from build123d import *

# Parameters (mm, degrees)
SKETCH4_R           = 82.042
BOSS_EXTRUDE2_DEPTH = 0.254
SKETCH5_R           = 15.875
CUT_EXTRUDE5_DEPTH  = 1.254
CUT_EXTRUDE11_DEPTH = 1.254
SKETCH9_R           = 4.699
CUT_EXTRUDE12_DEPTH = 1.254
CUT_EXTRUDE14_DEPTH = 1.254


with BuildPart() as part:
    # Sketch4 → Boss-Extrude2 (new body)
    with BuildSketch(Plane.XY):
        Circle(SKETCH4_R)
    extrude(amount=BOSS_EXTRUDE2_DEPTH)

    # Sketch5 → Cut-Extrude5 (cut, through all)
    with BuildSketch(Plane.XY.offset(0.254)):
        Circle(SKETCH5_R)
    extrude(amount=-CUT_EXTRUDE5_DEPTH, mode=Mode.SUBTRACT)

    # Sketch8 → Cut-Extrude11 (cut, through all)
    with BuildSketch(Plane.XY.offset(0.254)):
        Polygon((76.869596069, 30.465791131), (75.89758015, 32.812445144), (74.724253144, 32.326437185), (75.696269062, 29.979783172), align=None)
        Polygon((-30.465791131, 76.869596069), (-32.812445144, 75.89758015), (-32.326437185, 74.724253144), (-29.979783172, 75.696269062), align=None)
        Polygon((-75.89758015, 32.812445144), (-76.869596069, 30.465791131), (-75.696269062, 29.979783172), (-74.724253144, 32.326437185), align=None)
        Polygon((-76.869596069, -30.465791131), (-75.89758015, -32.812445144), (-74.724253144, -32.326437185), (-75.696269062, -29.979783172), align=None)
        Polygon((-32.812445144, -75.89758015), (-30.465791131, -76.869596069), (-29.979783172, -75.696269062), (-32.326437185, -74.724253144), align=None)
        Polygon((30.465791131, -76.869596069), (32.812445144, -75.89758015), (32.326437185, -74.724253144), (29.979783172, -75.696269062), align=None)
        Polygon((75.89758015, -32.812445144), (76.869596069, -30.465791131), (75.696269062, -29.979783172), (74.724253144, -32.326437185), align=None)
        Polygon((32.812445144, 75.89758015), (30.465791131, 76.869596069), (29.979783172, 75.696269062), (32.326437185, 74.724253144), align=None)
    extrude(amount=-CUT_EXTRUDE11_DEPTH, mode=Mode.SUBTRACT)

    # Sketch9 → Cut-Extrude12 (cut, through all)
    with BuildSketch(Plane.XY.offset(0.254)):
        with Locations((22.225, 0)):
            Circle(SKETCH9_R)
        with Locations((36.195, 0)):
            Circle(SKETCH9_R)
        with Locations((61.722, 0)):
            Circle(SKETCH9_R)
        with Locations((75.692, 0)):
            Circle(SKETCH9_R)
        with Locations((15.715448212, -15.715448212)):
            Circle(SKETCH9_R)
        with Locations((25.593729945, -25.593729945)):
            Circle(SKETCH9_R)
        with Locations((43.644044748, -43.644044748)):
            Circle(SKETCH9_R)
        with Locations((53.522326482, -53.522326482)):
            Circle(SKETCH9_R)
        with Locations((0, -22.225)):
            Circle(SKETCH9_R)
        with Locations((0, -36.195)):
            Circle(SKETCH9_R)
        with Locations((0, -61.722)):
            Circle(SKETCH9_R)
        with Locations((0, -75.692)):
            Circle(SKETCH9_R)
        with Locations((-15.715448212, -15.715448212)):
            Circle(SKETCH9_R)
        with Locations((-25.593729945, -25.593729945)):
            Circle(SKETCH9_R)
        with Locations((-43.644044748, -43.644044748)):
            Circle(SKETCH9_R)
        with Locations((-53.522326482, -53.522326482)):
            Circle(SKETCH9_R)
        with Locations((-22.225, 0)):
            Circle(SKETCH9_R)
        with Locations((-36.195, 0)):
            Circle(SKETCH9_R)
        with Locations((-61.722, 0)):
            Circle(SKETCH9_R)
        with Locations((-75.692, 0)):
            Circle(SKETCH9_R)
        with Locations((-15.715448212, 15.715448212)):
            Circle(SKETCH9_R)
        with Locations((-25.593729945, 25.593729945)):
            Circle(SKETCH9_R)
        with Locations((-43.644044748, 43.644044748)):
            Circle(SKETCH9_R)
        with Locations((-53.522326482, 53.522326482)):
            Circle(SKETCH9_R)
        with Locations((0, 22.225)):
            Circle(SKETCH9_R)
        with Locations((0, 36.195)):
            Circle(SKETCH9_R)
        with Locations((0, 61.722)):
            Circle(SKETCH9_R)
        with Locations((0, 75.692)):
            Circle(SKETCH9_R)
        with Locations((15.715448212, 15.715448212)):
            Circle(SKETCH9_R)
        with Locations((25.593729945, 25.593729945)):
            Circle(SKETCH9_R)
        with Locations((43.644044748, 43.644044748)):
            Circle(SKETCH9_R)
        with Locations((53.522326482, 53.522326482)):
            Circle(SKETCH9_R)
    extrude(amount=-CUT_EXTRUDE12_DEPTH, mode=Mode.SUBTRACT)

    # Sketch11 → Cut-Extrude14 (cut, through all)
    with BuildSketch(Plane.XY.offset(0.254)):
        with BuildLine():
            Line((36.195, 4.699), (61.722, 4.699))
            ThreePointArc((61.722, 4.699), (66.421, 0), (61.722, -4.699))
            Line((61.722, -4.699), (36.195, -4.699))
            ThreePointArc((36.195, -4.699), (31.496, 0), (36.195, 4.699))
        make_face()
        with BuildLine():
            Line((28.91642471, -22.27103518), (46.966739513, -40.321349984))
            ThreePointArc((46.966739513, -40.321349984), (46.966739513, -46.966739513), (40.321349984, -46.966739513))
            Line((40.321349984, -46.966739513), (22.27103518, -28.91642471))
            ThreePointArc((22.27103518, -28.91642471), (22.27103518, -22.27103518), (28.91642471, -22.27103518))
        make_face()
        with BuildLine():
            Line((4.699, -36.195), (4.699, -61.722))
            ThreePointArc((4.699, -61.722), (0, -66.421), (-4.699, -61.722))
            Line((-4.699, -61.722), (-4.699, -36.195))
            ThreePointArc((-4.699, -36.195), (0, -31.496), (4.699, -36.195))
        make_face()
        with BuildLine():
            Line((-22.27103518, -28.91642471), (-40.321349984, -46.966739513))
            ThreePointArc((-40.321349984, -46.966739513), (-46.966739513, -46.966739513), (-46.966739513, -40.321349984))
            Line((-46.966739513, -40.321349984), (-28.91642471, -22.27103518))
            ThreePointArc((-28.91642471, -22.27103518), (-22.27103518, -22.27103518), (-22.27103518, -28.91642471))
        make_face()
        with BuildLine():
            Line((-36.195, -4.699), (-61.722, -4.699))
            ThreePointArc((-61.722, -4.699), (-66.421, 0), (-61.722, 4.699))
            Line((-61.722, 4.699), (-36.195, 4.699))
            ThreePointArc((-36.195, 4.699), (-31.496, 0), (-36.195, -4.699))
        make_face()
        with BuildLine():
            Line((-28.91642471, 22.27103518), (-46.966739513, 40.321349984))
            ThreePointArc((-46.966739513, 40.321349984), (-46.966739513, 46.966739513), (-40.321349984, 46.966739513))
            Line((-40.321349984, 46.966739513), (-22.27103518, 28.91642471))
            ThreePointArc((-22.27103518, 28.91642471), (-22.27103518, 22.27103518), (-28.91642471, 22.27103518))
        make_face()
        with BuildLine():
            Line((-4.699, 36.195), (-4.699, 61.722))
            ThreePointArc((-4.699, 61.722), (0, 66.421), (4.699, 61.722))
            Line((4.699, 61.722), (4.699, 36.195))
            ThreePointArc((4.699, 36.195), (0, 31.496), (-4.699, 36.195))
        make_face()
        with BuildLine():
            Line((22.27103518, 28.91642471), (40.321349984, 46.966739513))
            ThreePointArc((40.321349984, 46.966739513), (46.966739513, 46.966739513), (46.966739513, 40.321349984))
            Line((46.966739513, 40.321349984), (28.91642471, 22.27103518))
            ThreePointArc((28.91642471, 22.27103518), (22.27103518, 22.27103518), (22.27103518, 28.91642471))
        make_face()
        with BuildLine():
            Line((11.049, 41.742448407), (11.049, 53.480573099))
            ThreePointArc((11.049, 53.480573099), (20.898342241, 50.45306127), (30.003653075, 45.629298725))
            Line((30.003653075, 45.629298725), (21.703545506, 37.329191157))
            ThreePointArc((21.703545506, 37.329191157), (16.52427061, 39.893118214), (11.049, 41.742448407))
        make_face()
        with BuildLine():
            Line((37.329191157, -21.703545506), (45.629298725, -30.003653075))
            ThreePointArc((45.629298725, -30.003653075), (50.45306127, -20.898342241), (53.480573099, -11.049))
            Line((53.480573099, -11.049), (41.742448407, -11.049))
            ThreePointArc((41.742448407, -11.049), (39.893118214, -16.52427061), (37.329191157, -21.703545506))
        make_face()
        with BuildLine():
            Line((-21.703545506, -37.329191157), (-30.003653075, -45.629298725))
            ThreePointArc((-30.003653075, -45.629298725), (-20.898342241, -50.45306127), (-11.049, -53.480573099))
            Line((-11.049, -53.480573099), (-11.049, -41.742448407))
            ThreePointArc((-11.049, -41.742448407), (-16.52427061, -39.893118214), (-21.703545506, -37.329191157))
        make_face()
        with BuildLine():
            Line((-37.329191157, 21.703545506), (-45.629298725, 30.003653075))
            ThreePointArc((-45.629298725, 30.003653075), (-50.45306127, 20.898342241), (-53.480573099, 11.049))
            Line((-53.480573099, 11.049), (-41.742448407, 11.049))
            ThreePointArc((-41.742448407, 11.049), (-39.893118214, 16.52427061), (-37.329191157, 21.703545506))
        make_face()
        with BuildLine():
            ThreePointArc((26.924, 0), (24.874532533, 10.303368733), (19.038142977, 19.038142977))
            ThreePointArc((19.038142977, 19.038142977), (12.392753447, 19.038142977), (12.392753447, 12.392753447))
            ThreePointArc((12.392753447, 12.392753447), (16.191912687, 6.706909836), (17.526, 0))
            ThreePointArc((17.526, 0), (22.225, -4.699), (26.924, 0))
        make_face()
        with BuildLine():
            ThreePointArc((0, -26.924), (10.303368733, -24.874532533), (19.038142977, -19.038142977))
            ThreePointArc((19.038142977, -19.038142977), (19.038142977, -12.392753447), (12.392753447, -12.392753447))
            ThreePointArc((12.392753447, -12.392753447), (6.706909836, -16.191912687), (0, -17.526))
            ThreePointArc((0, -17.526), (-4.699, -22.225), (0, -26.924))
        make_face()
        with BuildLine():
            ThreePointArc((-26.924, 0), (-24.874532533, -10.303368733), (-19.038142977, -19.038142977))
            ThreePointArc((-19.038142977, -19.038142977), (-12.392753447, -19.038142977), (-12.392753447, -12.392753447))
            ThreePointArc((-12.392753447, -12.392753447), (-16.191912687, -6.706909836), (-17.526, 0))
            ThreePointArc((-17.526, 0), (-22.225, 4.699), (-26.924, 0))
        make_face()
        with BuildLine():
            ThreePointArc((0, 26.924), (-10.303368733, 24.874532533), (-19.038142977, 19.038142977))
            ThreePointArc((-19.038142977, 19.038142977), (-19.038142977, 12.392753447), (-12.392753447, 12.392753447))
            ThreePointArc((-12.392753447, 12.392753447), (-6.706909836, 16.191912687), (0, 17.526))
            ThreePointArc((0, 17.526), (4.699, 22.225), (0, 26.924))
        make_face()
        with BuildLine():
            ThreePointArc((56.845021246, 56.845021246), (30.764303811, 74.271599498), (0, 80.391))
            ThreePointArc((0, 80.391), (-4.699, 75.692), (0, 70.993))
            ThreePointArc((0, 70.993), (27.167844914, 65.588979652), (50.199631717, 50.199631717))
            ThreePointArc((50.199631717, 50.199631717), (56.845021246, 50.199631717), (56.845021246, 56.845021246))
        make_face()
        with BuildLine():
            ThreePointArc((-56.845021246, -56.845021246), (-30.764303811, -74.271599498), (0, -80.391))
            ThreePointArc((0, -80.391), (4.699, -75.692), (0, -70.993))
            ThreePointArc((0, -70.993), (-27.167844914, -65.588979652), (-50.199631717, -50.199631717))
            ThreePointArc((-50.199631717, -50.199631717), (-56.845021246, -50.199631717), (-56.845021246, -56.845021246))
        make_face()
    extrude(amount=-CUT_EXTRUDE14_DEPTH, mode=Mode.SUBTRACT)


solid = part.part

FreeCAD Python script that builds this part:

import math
import FreeCAD as App
import Part
import Sketcher

V = App.Vector
Q = App.Units.Quantity

doc = App.newDocument("Part")
body = doc.addObject("PartDesign::Body", "Body")

# Sketch on XY plane
sketch1 = body.newObject("Sketcher::SketchObject", "Sketch")
sketch1.AttachmentSupport = (doc.getObject("XY_Plane"), [""])
sketch1.MapMode = "FlatFace"
sketch1.addGeometry(Part.Circle(V(0, 0, 0), V(0, 0, 1), 82.042), False)
sketch1.addConstraint([
    Sketcher.Constraint("Coincident", 0, 3, -1, 1),
    Sketcher.Constraint("Diameter", 0, Q("6.46 in")),
])
pad1 = body.newObject("PartDesign::Pad", "Pad")
pad1.Profile = sketch1
pad1.Length = Q("0.01 in")

# Sketch on XY plane
sketch2 = body.newObject("Sketcher::SketchObject", "Sketch001")
sketch2.AttachmentSupport = (doc.getObject("XY_Plane"), [""])
sketch2.MapMode = "FlatFace"
sketch2.AttachmentOffset = App.Placement(V(0, 0, 0.01 * 25.4), App.Rotation())
sketch2.addGeometry(Part.Circle(V(0, 0, 0), V(0, 0, 1), 15.875), False)
sketch2.addConstraint([
    Sketcher.Constraint("Coincident", 0, 3, -1, 1),
    Sketcher.Constraint("Diameter", 0, Q("1.25 in")),
])
pocket1 = body.newObject("PartDesign::Pocket", "Pocket")
pocket1.Profile = sketch2
pocket1.Type = "ThroughAll"

# Sketch on XY plane
sketch3 = body.newObject("Sketcher::SketchObject", "Sketch002")
sketch3.AttachmentSupport = (doc.getObject("XY_Plane"), [""])
sketch3.MapMode = "FlatFace"
sketch3.AttachmentOffset = App.Placement(V(0, 0, 0.01 * 25.4), App.Rotation())
sketch3.addGeometry([
    Part.LineSegment(V(76.869596, 30.465791, 0), V(75.89758, 32.812445, 0)),  # 0
    Part.LineSegment(V(75.89758, 32.812445, 0), V(74.724253, 32.326437, 0)),  # 1
    Part.LineSegment(V(74.724253, 32.326437, 0), V(75.696269, 29.979783, 0)),  # 2
    Part.LineSegment(V(75.696269, 29.979783, 0), V(76.869596, 30.465791, 0)),  # 3
    Part.LineSegment(V(-30.465791, 76.869596, 0), V(-32.812445, 75.89758, 0)),  # 4
    Part.LineSegment(V(-32.812445, 75.89758, 0), V(-32.326437, 74.724253, 0)),  # 5
    Part.LineSegment(V(-32.326437, 74.724253, 0), V(-29.979783, 75.696269, 0)),  # 6
    Part.LineSegment(V(-29.979783, 75.696269, 0), V(-30.465791, 76.869596, 0)),  # 7
    Part.LineSegment(V(-75.89758, 32.812445, 0), V(-76.869596, 30.465791, 0)),  # 8
    Part.LineSegment(V(-76.869596, 30.465791, 0), V(-75.696269, 29.979783, 0)),  # 9
    Part.LineSegment(V(-75.696269, 29.979783, 0), V(-74.724253, 32.326437, 0)),  # 10
    Part.LineSegment(V(-74.724253, 32.326437, 0), V(-75.89758, 32.812445, 0)),  # 11
    Part.LineSegment(V(-76.869596, -30.465791, 0), V(-75.89758, -32.812445, 0)),  # 12
    Part.LineSegment(V(-75.89758, -32.812445, 0), V(-74.724253, -32.326437, 0)),  # 13
    Part.LineSegment(V(-74.724253, -32.326437, 0), V(-75.696269, -29.979783, 0)),  # 14
    Part.LineSegment(V(-75.696269, -29.979783, 0), V(-76.869596, -30.465791, 0)),  # 15
    Part.LineSegment(V(-32.812445, -75.89758, 0), V(-30.465791, -76.869596, 0)),  # 16
    Part.LineSegment(V(-30.465791, -76.869596, 0), V(-29.979783, -75.696269, 0)),  # 17
    Part.LineSegment(V(-29.979783, -75.696269, 0), V(-32.326437, -74.724253, 0)),  # 18
    Part.LineSegment(V(-32.326437, -74.724253, 0), V(-32.812445, -75.89758, 0)),  # 19
    Part.LineSegment(V(30.465791, -76.869596, 0), V(32.812445, -75.89758, 0)),  # 20
    Part.LineSegment(V(32.812445, -75.89758, 0), V(32.326437, -74.724253, 0)),  # 21
    Part.LineSegment(V(32.326437, -74.724253, 0), V(29.979783, -75.696269, 0)),  # 22
    Part.LineSegment(V(29.979783, -75.696269, 0), V(30.465791, -76.869596, 0)),  # 23
    Part.LineSegment(V(75.89758, -32.812445, 0), V(76.869596, -30.465791, 0)),  # 24
    Part.LineSegment(V(76.869596, -30.465791, 0), V(75.696269, -29.979783, 0)),  # 25
    Part.LineSegment(V(75.696269, -29.979783, 0), V(74.724253, -32.326437, 0)),  # 26
    Part.LineSegment(V(74.724253, -32.326437, 0), V(75.89758, -32.812445, 0)),  # 27
    Part.LineSegment(V(32.812445, 75.89758, 0), V(30.465791, 76.869596, 0)),  # 28
    Part.LineSegment(V(30.465791, 76.869596, 0), V(29.979783, 75.696269, 0)),  # 29
    Part.LineSegment(V(29.979783, 75.696269, 0), V(32.326437, 74.724253, 0)),  # 30
    Part.LineSegment(V(32.326437, 74.724253, 0), V(32.812445, 75.89758, 0)),  # 31
], False)
sketch3.addConstraint([
    Sketcher.Constraint("Coincident", 0, 2, 1, 1),
    Sketcher.Constraint("Coincident", 1, 2, 2, 1),
    Sketcher.Constraint("Coincident", 2, 2, 3, 1),
    Sketcher.Constraint("Coincident", 3, 2, 0, 1),
    Sketcher.Constraint("Coincident", 4, 2, 5, 1),
    Sketcher.Constraint("Coincident", 5, 2, 6, 1),
    Sketcher.Constraint("Coincident", 6, 2, 7, 1),
    Sketcher.Constraint("Coincident", 7, 2, 4, 1),
    Sketcher.Constraint("Coincident", 8, 2, 9, 1),
    Sketcher.Constraint("Coincident", 9, 2, 10, 1),
    Sketcher.Constraint("Coincident", 10, 2, 11, 1),
    Sketcher.Constraint("Coincident", 11, 2, 8, 1),
    Sketcher.Constraint("Coincident", 12, 2, 13, 1),
    Sketcher.Constraint("Coincident", 13, 2, 14, 1),
    Sketcher.Constraint("Coincident", 14, 2, 15, 1),
    Sketcher.Constraint("Coincident", 15, 2, 12, 1),
    Sketcher.Constraint("Coincident", 16, 2, 17, 1),
    Sketcher.Constraint("Coincident", 17, 2, 18, 1),
    Sketcher.Constraint("Coincident", 18, 2, 19, 1),
    Sketcher.Constraint("Coincident", 19, 2, 16, 1),
    Sketcher.Constraint("Coincident", 20, 2, 21, 1),
    Sketcher.Constraint("Coincident", 21, 2, 22, 1),
    Sketcher.Constraint("Coincident", 22, 2, 23, 1),
    Sketcher.Constraint("Coincident", 23, 2, 20, 1),
    Sketcher.Constraint("Coincident", 24, 2, 25, 1),
    Sketcher.Constraint("Coincident", 25, 2, 26, 1),
    Sketcher.Constraint("Coincident", 26, 2, 27, 1),
    Sketcher.Constraint("Coincident", 27, 2, 24, 1),
    Sketcher.Constraint("Coincident", 28, 2, 29, 1),
    Sketcher.Constraint("Coincident", 29, 2, 30, 1),
    Sketcher.Constraint("Coincident", 30, 2, 31, 1),
    Sketcher.Constraint("Coincident", 31, 2, 28, 1),
    Sketcher.Constraint("Symmetric", 0, 2, 12, 2, -1, 1),
    Sketcher.Constraint("Symmetric", 1, 2, 13, 2, -1, 1),
    Sketcher.Constraint("Symmetric", 2, 2, 14, 2, -1, 1),
    Sketcher.Constraint("Symmetric", 3, 2, 15, 2, -1, 1),
    Sketcher.Constraint("Symmetric", 4, 2, 20, 2, -1, 1),
    Sketcher.Constraint("Symmetric", 5, 2, 21, 2, -1, 1),
    Sketcher.Constraint("Symmetric", 6, 2, 22, 2, -1, 1),
    Sketcher.Constraint("Symmetric", 7, 2, 23, 2, -1, 1),
    Sketcher.Constraint("Symmetric", 8, 2, 24, 2, -1, 1),
    Sketcher.Constraint("Symmetric", 9, 2, 25, 2, -1, 1),
    Sketcher.Constraint("Symmetric", 10, 2, 26, 2, -1, 1),
    Sketcher.Constraint("Symmetric", 11, 2, 27, 2, -1, 1),
    Sketcher.Constraint("Symmetric", 16, 2, 28, 2, -1, 1),
    Sketcher.Constraint("Symmetric", 17, 2, 29, 2, -1, 1),
    Sketcher.Constraint("Symmetric", 18, 2, 30, 2, -1, 1),
    Sketcher.Constraint("Symmetric", 19, 2, 31, 2, -1, 1),
    Sketcher.Constraint("Symmetric", 3, 2, 8, 2, -2),
    Sketcher.Constraint("Symmetric", 2, 2, 9, 2, -2),
    Sketcher.Constraint("Symmetric", 1, 2, 10, 2, -2),
    Sketcher.Constraint("Symmetric", 0, 2, 11, 2, -2),
    Sketcher.Constraint("Symmetric", 19, 2, 20, 2, -2),
    Sketcher.Constraint("Symmetric", 18, 2, 21, 2, -2),
    Sketcher.Constraint("Symmetric", 17, 2, 22, 2, -2),
    Sketcher.Constraint("Symmetric", 16, 2, 23, 2, -2),
    Sketcher.Constraint("Perpendicular", 0, 1),
    Sketcher.Constraint("Perpendicular", 1, 2),
    Sketcher.Constraint("Perpendicular", 2, 3),
    Sketcher.Constraint("Parallel", 3, 4),
    Sketcher.Constraint("Perpendicular", 4, 5),
    Sketcher.Constraint("Perpendicular", 5, 6),
    Sketcher.Constraint("Perpendicular", 6, 7),
    Sketcher.Constraint("Equal", 2, 4),
    Sketcher.Constraint("Equal", 3, 5),
    Sketcher.Constraint("Distance", 0, Q("0.1 in")),
    Sketcher.Constraint("Angle", 0, Q("112.5 deg")),
    Sketcher.Constraint("Distance", 1, Q("0.05 in")),
    Sketcher.Constraint("DistanceX", 6, 2, 0, 2, Q("4.1684001 in")),
    Sketcher.Constraint("DistanceY", 20, 2, 2, 2, Q("4.1684001 in")),
    Sketcher.Constraint("DistanceX", -1, 1, 0, 2, Q("75.89758 mm")),
    Sketcher.Constraint("DistanceY", -1, 1, 3, 2, Q("30.465791 mm")),
])
pocket2 = body.newObject("PartDesign::Pocket", "Pocket001")
pocket2.Profile = sketch3
pocket2.Type = "ThroughAll"

# Sketch on XY plane
sketch4 = body.newObject("Sketcher::SketchObject", "Sketch003")
sketch4.AttachmentSupport = (doc.getObject("XY_Plane"), [""])
sketch4.MapMode = "FlatFace"
sketch4.AttachmentOffset = App.Placement(V(0, 0, 0.01 * 25.4), App.Rotation())
sketch4.addGeometry([
    Part.Circle(V(22.225, 0, 0), V(0, 0, 1), 4.699),  # 0
    Part.Circle(V(36.195, 0, 0), V(0, 0, 1), 4.699),  # 1
    Part.Circle(V(61.722, 0, 0), V(0, 0, 1), 4.699),  # 2
    Part.Circle(V(75.692, 0, 0), V(0, 0, 1), 4.699),  # 3
    Part.Circle(V(15.715448, -15.715448, 0), V(0, 0, 1), 4.699),  # 4
    Part.Circle(V(25.59373, -25.59373, 0), V(0, 0, 1), 4.699),  # 5
    Part.Circle(V(43.644045, -43.644045, 0), V(0, 0, 1), 4.699),  # 6
    Part.Circle(V(53.522326, -53.522326, 0), V(0, 0, 1), 4.699),  # 7
    Part.Circle(V(0, -22.225, 0), V(0, 0, 1), 4.699),  # 8
    Part.Circle(V(0, -36.195, 0), V(0, 0, 1), 4.699),  # 9
    Part.Circle(V(0, -61.722, 0), V(0, 0, 1), 4.699),  # 10
    Part.Circle(V(0, -75.692, 0), V(0, 0, 1), 4.699),  # 11
    Part.Circle(V(-15.715448, -15.715448, 0), V(0, 0, 1), 4.699),  # 12
    Part.Circle(V(-25.59373, -25.59373, 0), V(0, 0, 1), 4.699),  # 13
    Part.Circle(V(-43.644045, -43.644045, 0), V(0, 0, 1), 4.699),  # 14
    Part.Circle(V(-53.522326, -53.522326, 0), V(0, 0, 1), 4.699),  # 15
    Part.Circle(V(-22.225, 0, 0), V(0, 0, 1), 4.699),  # 16
    Part.Circle(V(-36.195, 0, 0), V(0, 0, 1), 4.699),  # 17
    Part.Circle(V(-61.722, 0, 0), V(0, 0, 1), 4.699),  # 18
    Part.Circle(V(-75.692, 0, 0), V(0, 0, 1), 4.699),  # 19
    Part.Circle(V(-15.715448, 15.715448, 0), V(0, 0, 1), 4.699),  # 20
    Part.Circle(V(-25.59373, 25.59373, 0), V(0, 0, 1), 4.699),  # 21
    Part.Circle(V(-43.644045, 43.644045, 0), V(0, 0, 1), 4.699),  # 22
    Part.Circle(V(-53.522326, 53.522326, 0), V(0, 0, 1), 4.699),  # 23
    Part.Circle(V(0, 22.225, 0), V(0, 0, 1), 4.699),  # 24
    Part.Circle(V(0, 36.195, 0), V(0, 0, 1), 4.699),  # 25
    Part.Circle(V(0, 61.722, 0), V(0, 0, 1), 4.699),  # 26
    Part.Circle(V(0, 75.692, 0), V(0, 0, 1), 4.699),  # 27
    Part.Circle(V(15.715448, 15.715448, 0), V(0, 0, 1), 4.699),  # 28
    Part.Circle(V(25.59373, 25.59373, 0), V(0, 0, 1), 4.699),  # 29
    Part.Circle(V(43.644045, 43.644045, 0), V(0, 0, 1), 4.699),  # 30
    Part.Circle(V(53.522326, 53.522326, 0), V(0, 0, 1), 4.699),  # 31
], False)
sketch4.addConstraint([
    Sketcher.Constraint("Equal", 0, 1),
    Sketcher.Constraint("Equal", 1, 2),
    Sketcher.Constraint("Equal", 2, 3),
    Sketcher.Constraint("Equal", 3, 4),
    Sketcher.Constraint("Equal", 4, 5),
    Sketcher.Constraint("Equal", 5, 6),
    Sketcher.Constraint("Equal", 6, 7),
    Sketcher.Constraint("Equal", 7, 8),
    Sketcher.Constraint("Equal", 8, 9),
    Sketcher.Constraint("Equal", 9, 10),
    Sketcher.Constraint("Equal", 10, 11),
    Sketcher.Constraint("Equal", 11, 12),
    Sketcher.Constraint("Equal", 12, 13),
    Sketcher.Constraint("Equal", 13, 14),
    Sketcher.Constraint("Equal", 14, 15),
    Sketcher.Constraint("Equal", 15, 16),
    Sketcher.Constraint("Equal", 16, 17),
    Sketcher.Constraint("Equal", 17, 18),
    Sketcher.Constraint("Equal", 18, 19),
    Sketcher.Constraint("Equal", 19, 20),
    Sketcher.Constraint("Equal", 20, 21),
    Sketcher.Constraint("Equal", 21, 22),
    Sketcher.Constraint("Equal", 22, 23),
    Sketcher.Constraint("Equal", 23, 24),
    Sketcher.Constraint("Equal", 24, 25),
    Sketcher.Constraint("Equal", 25, 26),
    Sketcher.Constraint("Equal", 26, 27),
    Sketcher.Constraint("Equal", 27, 28),
    Sketcher.Constraint("Equal", 28, 29),
    Sketcher.Constraint("Equal", 29, 30),
    Sketcher.Constraint("Equal", 30, 31),
    Sketcher.Constraint("Symmetric", 0, 3, 16, 3, -1, 1),
    Sketcher.Constraint("Symmetric", 1, 3, 17, 3, -1, 1),
    Sketcher.Constraint("Symmetric", 2, 3, 18, 3, -1, 1),
    Sketcher.Constraint("Symmetric", 3, 3, 19, 3, -1, 1),
    Sketcher.Constraint("Symmetric", 4, 3, 20, 3, -1, 1),
    Sketcher.Constraint("Symmetric", 5, 3, 21, 3, -1, 1),
    Sketcher.Constraint("Symmetric", 6, 3, 22, 3, -1, 1),
    Sketcher.Constraint("Symmetric", 7, 3, 23, 3, -1, 1),
    Sketcher.Constraint("Symmetric", 8, 3, 24, 3, -1, 1),
    Sketcher.Constraint("Symmetric", 9, 3, 25, 3, -1, 1),
    Sketcher.Constraint("Symmetric", 10, 3, 26, 3, -1, 1),
    Sketcher.Constraint("Symmetric", 11, 3, 27, 3, -1, 1),
    Sketcher.Constraint("Symmetric", 12, 3, 28, 3, -1, 1),
    Sketcher.Constraint("Symmetric", 13, 3, 29, 3, -1, 1),
    Sketcher.Constraint("Symmetric", 14, 3, 30, 3, -1, 1),
    Sketcher.Constraint("Symmetric", 15, 3, 31, 3, -1, 1),
    Sketcher.Constraint("Symmetric", 4, 3, 12, 3, -2),
    Sketcher.Constraint("Symmetric", 5, 3, 13, 3, -2),
    Sketcher.Constraint("Symmetric", 6, 3, 14, 3, -2),
    Sketcher.Constraint("Symmetric", 7, 3, 15, 3, -2),
    Sketcher.Constraint("PointOnObject", 0, 3, -1),
    Sketcher.Constraint("PointOnObject", 1, 3, -1),
    Sketcher.Constraint("PointOnObject", 2, 3, -1),
    Sketcher.Constraint("PointOnObject", 3, 3, -1),
    Sketcher.Constraint("PointOnObject", 8, 3, -2),
    Sketcher.Constraint("PointOnObject", 9, 3, -2),
    Sketcher.Constraint("PointOnObject", 10, 3, -2),
    Sketcher.Constraint("PointOnObject", 11, 3, -2),
    Sketcher.Constraint("Diameter", 0, Q("0.37 in")),
    Sketcher.Constraint("DistanceX", -1, 1, 2, 3, Q("2.43 in")),
    Sketcher.Constraint("DistanceX", -1, 1, 3, 3, Q("2.98 in")),
    Sketcher.Constraint("DistanceY", 10, 3, -1, 1, Q("2.43 in")),
    Sketcher.Constraint("DistanceY", 11, 3, -1, 1, Q("2.98 in")),
    Sketcher.Constraint("DistanceX", 0, 3, 1, 3, Q("0.55 in")),
    Sketcher.Constraint("DistanceY", 9, 3, 8, 3, Q("0.55 in")),
    Sketcher.Constraint("DistanceX", -1, 1, 0, 3, Q("0.875 in")),
    Sketcher.Constraint("DistanceY", 8, 3, -1, 1, Q("0.875 in")),
    Sketcher.Constraint("DistanceX", -1, 1, 4, 3, Q("15.715448 mm")),
    Sketcher.Constraint("DistanceY", 4, 3, -1, 1, Q("15.715448 mm")),
    Sketcher.Constraint("DistanceX", -1, 1, 5, 3, Q("25.59373 mm")),
    Sketcher.Constraint("DistanceY", 5, 3, -1, 1, Q("25.59373 mm")),
    Sketcher.Constraint("DistanceX", 6, 3, 7, 3, Q("9.878282 mm")),
    Sketcher.Constraint("DistanceY", 7, 3, 6, 3, Q("9.878282 mm")),
    Sketcher.Constraint("DistanceX", 4, 3, 7, 3, Q("37.806878 mm")),
    Sketcher.Constraint("DistanceY", 7, 3, 4, 3, Q("37.806878 mm")),
])
pocket3 = body.newObject("PartDesign::Pocket", "Pocket002")
pocket3.Profile = sketch4
pocket3.Type = "ThroughAll"

# Sketch on XY plane
sketch5 = body.newObject("Sketcher::SketchObject", "Sketch004")
sketch5.AttachmentSupport = (doc.getObject("XY_Plane"), [""])
sketch5.MapMode = "FlatFace"
sketch5.AttachmentOffset = App.Placement(V(0, 0, 0.01 * 25.4), App.Rotation())
sketch5.addGeometry([
    Part.LineSegment(V(61.722, 4.699, 0), V(36.195, 4.699, 0)),  # 0
    Part.ArcOfCircle(Part.Circle(V(36.195, 0, 0), V(0, 0, 1), 4.699), math.radians(90), math.radians(270)),  # 1
    Part.LineSegment(V(36.195, -4.699, 0), V(61.722, -4.699, 0)),  # 2
    Part.ArcOfCircle(Part.Circle(V(61.722, 0, 0), V(0, 0, 1), 4.699), math.radians(-90), math.radians(90)),  # 3
    Part.LineSegment(V(46.96674, -40.32135, 0), V(28.916425, -22.271035, 0)),  # 4
    Part.ArcOfCircle(Part.Circle(V(25.59373, -25.59373, 0), V(0, 0, 1), 4.699), math.radians(45), math.radians(225)),  # 5
    Part.LineSegment(V(22.271035, -28.916425, 0), V(40.32135, -46.96674, 0)),  # 6
    Part.ArcOfCircle(Part.Circle(V(43.644045, -43.644045, 0), V(0, 0, 1), 4.699), math.radians(-135), math.radians(45)),  # 7
    Part.LineSegment(V(4.699, -61.722, 0), V(4.699, -36.195, 0)),  # 8
    Part.ArcOfCircle(Part.Circle(V(0, -36.195, 0), V(0, 0, 1), 4.699), math.radians(0), math.radians(180)),  # 9
    Part.LineSegment(V(-4.699, -36.195, 0), V(-4.699, -61.722, 0)),  # 10
    Part.ArcOfCircle(Part.Circle(V(0, -61.722, 0), V(0, 0, 1), 4.699), math.radians(180), math.radians(360)),  # 11
    Part.LineSegment(V(-40.32135, -46.96674, 0), V(-22.271035, -28.916425, 0)),  # 12
    Part.ArcOfCircle(Part.Circle(V(-25.59373, -25.59373, 0), V(0, 0, 1), 4.699), math.radians(-45), math.radians(135)),  # 13
    Part.LineSegment(V(-28.916425, -22.271035, 0), V(-46.96674, -40.32135, 0)),  # 14
    Part.ArcOfCircle(Part.Circle(V(-43.644045, -43.644045, 0), V(0, 0, 1), 4.699), math.radians(135), math.radians(315)),  # 15
    Part.LineSegment(V(-61.722, -4.699, 0), V(-36.195, -4.699, 0)),  # 16
    Part.ArcOfCircle(Part.Circle(V(-36.195, 0, 0), V(0, 0, 1), 4.699), math.radians(-90), math.radians(90)),  # 17
    Part.LineSegment(V(-36.195, 4.699, 0), V(-61.722, 4.699, 0)),  # 18
    Part.ArcOfCircle(Part.Circle(V(-61.722, 0, 0), V(0, 0, 1), 4.699), math.radians(90), math.radians(270)),  # 19
    Part.LineSegment(V(-46.96674, 40.32135, 0), V(-28.916425, 22.271035, 0)),  # 20
    Part.ArcOfCircle(Part.Circle(V(-25.59373, 25.59373, 0), V(0, 0, 1), 4.699), math.radians(-135), math.radians(45)),  # 21
    Part.LineSegment(V(-22.271035, 28.916425, 0), V(-40.32135, 46.96674, 0)),  # 22
    Part.ArcOfCircle(Part.Circle(V(-43.644045, 43.644045, 0), V(0, 0, 1), 4.699), math.radians(45), math.radians(225)),  # 23
    Part.LineSegment(V(-4.699, 61.722, 0), V(-4.699, 36.195, 0)),  # 24
    Part.ArcOfCircle(Part.Circle(V(0, 36.195, 0), V(0, 0, 1), 4.699), math.radians(180), math.radians(360)),  # 25
    Part.LineSegment(V(4.699, 36.195, 0), V(4.699, 61.722, 0)),  # 26
    Part.ArcOfCircle(Part.Circle(V(0, 61.722, 0), V(0, 0, 1), 4.699), math.radians(0), math.radians(180)),  # 27
    Part.LineSegment(V(40.32135, 46.96674, 0), V(22.271035, 28.916425, 0)),  # 28
    Part.ArcOfCircle(Part.Circle(V(25.59373, 25.59373, 0), V(0, 0, 1), 4.699), math.radians(135), math.radians(315)),  # 29
    Part.LineSegment(V(28.916425, 22.271035, 0), V(46.96674, 40.32135, 0)),  # 30
    Part.ArcOfCircle(Part.Circle(V(43.644045, 43.644045, 0), V(0, 0, 1), 4.699), math.radians(-45), math.radians(135)),  # 31
    Part.LineSegment(V(11.049, 53.480573, 0), V(11.049, 41.742448, 0)),  # 32
    Part.ArcOfCircle(Part.Circle(V(0, 0, 0), V(0, 0, 1), 43.18), math.radians(59.825875), math.radians(75.174125)),  # 33
    Part.LineSegment(V(21.703546, 37.329191, 0), V(30.003653, 45.629299, 0)),  # 34
    Part.ArcOfCircle(Part.Circle(V(0, 0, 0), V(0, 0, 1), 54.61), math.radians(56.672986), math.radians(78.327014)),  # 35
    Part.LineSegment(V(37.329191, -21.703546, 0), V(45.629299, -30.003653, 0)),  # 36
    Part.ArcOfCircle(Part.Circle(V(0, 0, 0), V(0, 0, 1), 54.61), math.radians(-33.327014), math.radians(-11.672986)),  # 37
    Part.LineSegment(V(53.480573, -11.049, 0), V(41.742448, -11.049, 0)),  # 38
    Part.ArcOfCircle(Part.Circle(V(0, 0, 0), V(0, 0, 1), 43.18), math.radians(-30.174125), math.radians(-14.825875)),  # 39
    Part.LineSegment(V(-21.703546, -37.329191, 0), V(-30.003653, -45.629299, 0)),  # 40
    Part.ArcOfCircle(Part.Circle(V(0, 0, 0), V(0, 0, 1), 54.61), math.radians(-123.327014), math.radians(-101.672986)),  # 41
    Part.LineSegment(V(-11.049, -53.480573, 0), V(-11.049, -41.742448, 0)),  # 42
    Part.ArcOfCircle(Part.Circle(V(0, 0, 0), V(0, 0, 1), 43.18), math.radians(-120.174125), math.radians(-104.825875)),  # 43
    Part.LineSegment(V(-37.329191, 21.703546, 0), V(-45.629299, 30.003653, 0)),  # 44
    Part.ArcOfCircle(Part.Circle(V(0, 0, 0), V(0, 0, 1), 54.61), math.radians(146.672986), math.radians(168.327014)),  # 45
    Part.LineSegment(V(-53.480573, 11.049, 0), V(-41.742448, 11.049, 0)),  # 46
    Part.ArcOfCircle(Part.Circle(V(0, 0, 0), V(0, 0, 1), 43.18), math.radians(149.825875), math.radians(165.174125)),  # 47
    Part.ArcOfCircle(Part.Circle(V(0, 0, 0), V(0, 0, 1), 26.924), math.radians(0), math.radians(45)),  # 48
    Part.ArcOfCircle(Part.Circle(V(15.715448, 15.715448, 0), V(0, 0, 1), 4.699), math.radians(45), math.radians(225)),  # 49
    Part.ArcOfCircle(Part.Circle(V(0, 0, 0), V(0, 0, 1), 17.526), math.radians(0), math.radians(45)),  # 50
    Part.ArcOfCircle(Part.Circle(V(22.225, 0, 0), V(0, 0, 1), 4.699), math.radians(180), math.radians(360)),  # 51
    Part.ArcOfCircle(Part.Circle(V(0, 0, 0), V(0, 0, 1), 26.924), math.radians(-90), math.radians(-45)),  # 52
    Part.ArcOfCircle(Part.Circle(V(15.715448, -15.715448, 0), V(0, 0, 1), 4.699), math.radians(-45), math.radians(135)),  # 53
    Part.ArcOfCircle(Part.Circle(V(0, 0, 0), V(0, 0, 1), 17.526), math.radians(-90), math.radians(-45)),  # 54
    Part.ArcOfCircle(Part.Circle(V(0, -22.225, 0), V(0, 0, 1), 4.699), math.radians(90), math.radians(270)),  # 55
    Part.ArcOfCircle(Part.Circle(V(0, 0, 0), V(0, 0, 1), 26.924), math.radians(-180), math.radians(-135)),  # 56
    Part.ArcOfCircle(Part.Circle(V(-15.715448, -15.715448, 0), V(0, 0, 1), 4.699), math.radians(-135), math.radians(45)),  # 57
    Part.ArcOfCircle(Part.Circle(V(0, 0, 0), V(0, 0, 1), 17.526), math.radians(180), math.radians(225)),  # 58
    Part.ArcOfCircle(Part.Circle(V(-22.225, 0, 0), V(0, 0, 1), 4.699), math.radians(0), math.radians(180)),  # 59
    Part.ArcOfCircle(Part.Circle(V(0, 0, 0), V(0, 0, 1), 26.924), math.radians(90), math.radians(135)),  # 60
    Part.ArcOfCircle(Part.Circle(V(-15.715448, 15.715448, 0), V(0, 0, 1), 4.699), math.radians(135), math.radians(315)),  # 61
    Part.ArcOfCircle(Part.Circle(V(0, 0, 0), V(0, 0, 1), 17.526), math.radians(90), math.radians(135)),  # 62
    Part.ArcOfCircle(Part.Circle(V(0, 22.225, 0), V(0, 0, 1), 4.699), math.radians(-90), math.radians(90)),  # 63
    Part.ArcOfCircle(Part.Circle(V(0, 0, 0), V(0, 0, 1), 80.391), math.radians(45), math.radians(90)),  # 64
    Part.ArcOfCircle(Part.Circle(V(0, 75.692, 0), V(0, 0, 1), 4.699), math.radians(90), math.radians(270)),  # 65
    Part.ArcOfCircle(Part.Circle(V(0, 0, 0), V(0, 0, 1), 70.993), math.radians(45), math.radians(90)),  # 66
    Part.ArcOfCircle(Part.Circle(V(53.522326, 53.522326, 0), V(0, 0, 1), 4.699), math.radians(-135), math.radians(45)),  # 67
    Part.ArcOfCircle(Part.Circle(V(0, 0, 0), V(0, 0, 1), 80.391), math.radians(-135), math.radians(-90)),  # 68
    Part.ArcOfCircle(Part.Circle(V(0, -75.692, 0), V(0, 0, 1), 4.699), math.radians(-90), math.radians(90)),  # 69
    Part.ArcOfCircle(Part.Circle(V(0, 0, 0), V(0, 0, 1), 70.993), math.radians(-135), math.radians(-90)),  # 70
    Part.ArcOfCircle(Part.Circle(V(-53.522326, -53.522326, 0), V(0, 0, 1), 4.699), math.radians(45), math.radians(225)),  # 71
], False)
sketch5.addConstraint([
    Sketcher.Constraint("Tangent", 0, 2, 1, 1),
    Sketcher.Constraint("Tangent", 1, 2, 2, 1),
    Sketcher.Constraint("Tangent", 2, 2, 3, 1),
    Sketcher.Constraint("Tangent", 3, 2, 0, 1),
    Sketcher.Constraint("Tangent", 4, 2, 5, 1),
    Sketcher.Constraint("Tangent", 5, 2, 6, 1),
    Sketcher.Constraint("Tangent", 6, 2, 7, 1),
    Sketcher.Constraint("Tangent", 7, 2, 4, 1),
    Sketcher.Constraint("Tangent", 8, 2, 9, 1),
    Sketcher.Constraint("Tangent", 9, 2, 10, 1),
    Sketcher.Constraint("Tangent", 10, 2, 11, 1),
    Sketcher.Constraint("Tangent", 11, 2, 8, 1),
    Sketcher.Constraint("Tangent", 12, 2, 13, 1),
    Sketcher.Constraint("Tangent", 13, 2, 14, 1),
    Sketcher.Constraint("Tangent", 14, 2, 15, 1),
    Sketcher.Constraint("Tangent", 15, 2, 12, 1),
    Sketcher.Constraint("Tangent", 16, 2, 17, 1),
    Sketcher.Constraint("Tangent", 17, 2, 18, 1),
    Sketcher.Constraint("Tangent", 18, 2, 19, 1),
    Sketcher.Constraint("Tangent", 19, 2, 16, 1),
    Sketcher.Constraint("Tangent", 20, 2, 21, 1),
    Sketcher.Constraint("Tangent", 21, 2, 22, 1),
    Sketcher.Constraint("Tangent", 22, 2, 23, 1),
    Sketcher.Constraint("Tangent", 23, 2, 20, 1),
    Sketcher.Constraint("Tangent", 24, 2, 25, 1),
    Sketcher.Constraint("Tangent", 25, 2, 26, 1),
    Sketcher.Constraint("Tangent", 26, 2, 27, 1),
    Sketcher.Constraint("Tangent", 27, 2, 24, 1),
    Sketcher.Constraint("Tangent", 28, 2, 29, 1),
    Sketcher.Constraint("Tangent", 29, 2, 30, 1),
    Sketcher.Constraint("Tangent", 30, 2, 31, 1),
    Sketcher.Constraint("Tangent", 31, 2, 28, 1),
    Sketcher.Constraint("Coincident", 32, 2, 33, 2),
    Sketcher.Constraint("Coincident", 33, 1, 34, 1),
    Sketcher.Constraint("Coincident", 34, 2, 35, 1),
    Sketcher.Constraint("Coincident", 35, 2, 32, 1),
    Sketcher.Constraint("Coincident", 36, 2, 37, 1),
    Sketcher.Constraint("Coincident", 37, 2, 38, 1),
    Sketcher.Constraint("Coincident", 38, 2, 39, 2),
    Sketcher.Constraint("Coincident", 39, 1, 36, 1),
    Sketcher.Constraint("Coincident", 40, 2, 41, 1),
    Sketcher.Constraint("Coincident", 41, 2, 42, 1),
    Sketcher.Constraint("Coincident", 42, 2, 43, 2),
    Sketcher.Constraint("Coincident", 43, 1, 40, 1),
    Sketcher.Constraint("Coincident", 44, 2, 45, 1),
    Sketcher.Constraint("Coincident", 45, 2, 46, 1),
    Sketcher.Constraint("Coincident", 46, 2, 47, 2),
    Sketcher.Constraint("Coincident", 47, 1, 44, 1),
    Sketcher.Constraint("Tangent", 48, 2, 49, 1),
    Sketcher.Constraint("Tangent", 49, 2, 50, 2),
    Sketcher.Constraint("Tangent", 50, 1, 51, 1),
    Sketcher.Constraint("Tangent", 51, 2, 48, 1),
    Sketcher.Constraint("Tangent", 52, 2, 53, 1),
    Sketcher.Constraint("Tangent", 53, 2, 54, 2),
    Sketcher.Constraint("Tangent", 54, 1, 55, 1),
    Sketcher.Constraint("Tangent", 55, 2, 52, 1),
    Sketcher.Constraint("Tangent", 56, 2, 57, 1),
    Sketcher.Constraint("Tangent", 57, 2, 58, 2),
    Sketcher.Constraint("Tangent", 58, 1, 59, 1),
    Sketcher.Constraint("Tangent", 59, 2, 56, 1),
    Sketcher.Constraint("Tangent", 60, 2, 61, 1),
    Sketcher.Constraint("Tangent", 61, 2, 62, 2),
    Sketcher.Constraint("Tangent", 62, 1, 63, 1),
    Sketcher.Constraint("Tangent", 63, 2, 60, 1),
    Sketcher.Constraint("Tangent", 64, 2, 65, 1),
    Sketcher.Constraint("Tangent", 65, 2, 66, 2),
    Sketcher.Constraint("Tangent", 66, 1, 67, 1),
    Sketcher.Constraint("Tangent", 67, 2, 64, 1),
    Sketcher.Constraint("Tangent", 68, 2, 69, 1),
    Sketcher.Constraint("Tangent", 69, 2, 70, 2),
    Sketcher.Constraint("Tangent", 70, 1, 71, 1),
    Sketcher.Constraint("Tangent", 71, 2, 68, 1),
    Sketcher.Constraint("Horizontal", 0),
    Sketcher.Constraint("Horizontal", 2),
    Sketcher.Constraint("Vertical", 8),
    Sketcher.Constraint("Vertical", 10),
    Sketcher.Constraint("Horizontal", 16),
    Sketcher.Constraint("Horizontal", 18),
    Sketcher.Constraint("Vertical", 24),
    Sketcher.Constraint("Vertical", 26),
    Sketcher.Constraint("Vertical", 32),
    Sketcher.Constraint("Horizontal", 38),
    Sketcher.Constraint("Vertical", 42),
    Sketcher.Constraint("Horizontal", 46),
    Sketcher.Constraint("Coincident", 33, 3, -1, 1),
    Sketcher.Constraint("Coincident", 35, 3, -1, 1),
    Sketcher.Constraint("Coincident", 37, 3, -1, 1),
    Sketcher.Constraint("Coincident", 39, 3, -1, 1),
    Sketcher.Constraint("Coincident", 41, 3, -1, 1),
    Sketcher.Constraint("Coincident", 43, 3, -1, 1),
    Sketcher.Constraint("Coincident", 45, 3, -1, 1),
    Sketcher.Constraint("Coincident", 47, 3, -1, 1),
    Sketcher.Constraint("Coincident", 48, 3, -1, 1),
    Sketcher.Constraint("Coincident", 50, 3, -1, 1),
    Sketcher.Constraint("Coincident", 52, 3, -1, 1),
    Sketcher.Constraint("Coincident", 54, 3, -1, 1),
    Sketcher.Constraint("Coincident", 56, 3, -1, 1),
    Sketcher.Constraint("Coincident", 58, 3, -1, 1),
    Sketcher.Constraint("Coincident", 60, 3, -1, 1),
    Sketcher.Constraint("Coincident", 62, 3, -1, 1),
    Sketcher.Constraint("Coincident", 64, 3, -1, 1),
    Sketcher.Constraint("Coincident", 66, 3, -1, 1),
    Sketcher.Constraint("Coincident", 68, 3, -1, 1),
    Sketcher.Constraint("Coincident", 70, 3, -1, 1),
    Sketcher.Constraint("Equal", 3, 5),
    Sketcher.Constraint("Equal", 5, 7),
    Sketcher.Constraint("Equal", 7, 9),
    Sketcher.Constraint("Equal", 11, 13),
    Sketcher.Constraint("Equal", 13, 15),
    Sketcher.Constraint("Equal", 15, 17),
    Sketcher.Constraint("Equal", 19, 21),
    Sketcher.Constraint("Equal", 21, 23),
    Sketcher.Constraint("Equal", 23, 25),
    Sketcher.Constraint("Equal", 27, 29),
    Sketcher.Constraint("Equal", 29, 31),
    Sketcher.Constraint("Equal", 35, 37),
    Sketcher.Constraint("Equal", 33, 39),
    Sketcher.Constraint("Equal", 37, 41),
    Sketcher.Constraint("Equal", 39, 43),
    Sketcher.Constraint("Equal", 41, 45),
    Sketcher.Constraint("Equal", 43, 47),
    Sketcher.Constraint("Equal", 31, 49),
    Sketcher.Constraint("Equal", 48, 52),
    Sketcher.Constraint("Equal", 51, 53),
    Sketcher.Constraint("Equal", 52, 56),
    Sketcher.Constraint("Equal", 55, 57),
    Sketcher.Constraint("Equal", 56, 60),
    Sketcher.Constraint("Equal", 59, 61),
    Sketcher.Constraint("Equal", 63, 65),
    Sketcher.Constraint("Equal", 64, 68),
    Sketcher.Constraint("Equal", 67, 69),
    Sketcher.Constraint("Symmetric", 1, 3, 17, 3, -1, 1),
    Sketcher.Constraint("Symmetric", 5, 3, 21, 3, -1, 1),
    Sketcher.Constraint("Symmetric", 7, 3, 23, 3, -1, 1),
    Sketcher.Constraint("Symmetric", 9, 3, 25, 3, -1, 1),
    Sketcher.Constraint("Symmetric", 13, 3, 29, 3, -1, 1),
    Sketcher.Constraint("Symmetric", 15, 3, 31, 3, -1, 1),
    Sketcher.Constraint("Symmetric", 5, 3, 13, 3, -2),
    Sketcher.Constraint("Symmetric", 7, 3, 15, 3, -2),
    Sketcher.Constraint("Symmetric", 3, 3, 19, 3, -2),
    Sketcher.Constraint("Symmetric", 11, 3, 27, 3, -1),
    Sketcher.Constraint("PointOnObject", 51, 3, -1),
    Sketcher.Constraint("PointOnObject", 55, 3, -2),
    Sketcher.Constraint("PointOnObject", 59, 3, -1),
    Sketcher.Constraint("PointOnObject", 63, 3, -2),
    Sketcher.Constraint("PointOnObject", 65, 3, -2),
    Sketcher.Constraint("PointOnObject", 69, 3, -2),
    Sketcher.Constraint("Perpendicular", 6, 12),
    Sketcher.Constraint("Parallel", 30, 34),
    Sketcher.Constraint("Perpendicular", 34, 36),
    Sketcher.Constraint("Perpendicular", 36, 40),
    Sketcher.Constraint("Perpendicular", 40, 44),
    Sketcher.Constraint("Horizontal", 53, 3, 57, 3),
    Sketcher.Constraint("Horizontal", 49, 3, 61, 3),
    Sketcher.Constraint("Vertical", 49, 3, 53, 3),
    Sketcher.Constraint("Equal", 38, 46),
    Sketcher.Constraint("Equal", 18, 8),
    Sketcher.Constraint("Equal", 46, 32),
    Sketcher.Constraint("Equal", 32, 42),
    Sketcher.Constraint("Equal", 34, 36),
    Sketcher.Constraint("Equal", 36, 40),
    Sketcher.Constraint("Equal", 40, 44),
    Sketcher.Constraint("Radius", 33, Q("1.7 in")),
    Sketcher.Constraint("Radius", 35, Q("2.15 in")),
    Sketcher.Constraint("Radius", 48, Q("1.06 in")),
    Sketcher.Constraint("Radius", 50, Q("0.69 in")),
    Sketcher.Constraint("Radius", 64, Q("3.165 in")),
    Sketcher.Constraint("DistanceX", 0, 2, 0, 1, Q("1.005 in")),
    Sketcher.Constraint("DistanceX", -1, 1, 3, 3, Q("2.43 in")),
    Sketcher.Constraint("DistanceY", 11, 3, -1, 1, Q("2.43 in")),
    Sketcher.Constraint("Distance", 4, Q("1.005 in")),
    Sketcher.Constraint("DistanceX", -1, 1, 32, 2, Q("0.435 in")),
    Sketcher.Constraint("DistanceY", -1, 1, 34, 2, Q("45.629299 mm")),
    Sketcher.Constraint("DistanceX", -1, 1, 5, 3, Q("25.59373 mm")),
    Sketcher.Constraint("DistanceY", 5, 3, -1, 1, Q("25.59373 mm")),
    Sketcher.Constraint("DistanceX", -1, 1, 49, 3, Q("15.715448 mm")),
    Sketcher.Constraint("DistanceX", -1, 1, 66, 1, Q("50.199632 mm")),
    Sketcher.Constraint("DistanceX", 70, 1, -1, 1, Q("50.199632 mm")),
])
pocket4 = body.newObject("PartDesign::Pocket", "Pocket003")
pocket4.Profile = sketch5
pocket4.Type = "ThroughAll"

doc.recompute()
